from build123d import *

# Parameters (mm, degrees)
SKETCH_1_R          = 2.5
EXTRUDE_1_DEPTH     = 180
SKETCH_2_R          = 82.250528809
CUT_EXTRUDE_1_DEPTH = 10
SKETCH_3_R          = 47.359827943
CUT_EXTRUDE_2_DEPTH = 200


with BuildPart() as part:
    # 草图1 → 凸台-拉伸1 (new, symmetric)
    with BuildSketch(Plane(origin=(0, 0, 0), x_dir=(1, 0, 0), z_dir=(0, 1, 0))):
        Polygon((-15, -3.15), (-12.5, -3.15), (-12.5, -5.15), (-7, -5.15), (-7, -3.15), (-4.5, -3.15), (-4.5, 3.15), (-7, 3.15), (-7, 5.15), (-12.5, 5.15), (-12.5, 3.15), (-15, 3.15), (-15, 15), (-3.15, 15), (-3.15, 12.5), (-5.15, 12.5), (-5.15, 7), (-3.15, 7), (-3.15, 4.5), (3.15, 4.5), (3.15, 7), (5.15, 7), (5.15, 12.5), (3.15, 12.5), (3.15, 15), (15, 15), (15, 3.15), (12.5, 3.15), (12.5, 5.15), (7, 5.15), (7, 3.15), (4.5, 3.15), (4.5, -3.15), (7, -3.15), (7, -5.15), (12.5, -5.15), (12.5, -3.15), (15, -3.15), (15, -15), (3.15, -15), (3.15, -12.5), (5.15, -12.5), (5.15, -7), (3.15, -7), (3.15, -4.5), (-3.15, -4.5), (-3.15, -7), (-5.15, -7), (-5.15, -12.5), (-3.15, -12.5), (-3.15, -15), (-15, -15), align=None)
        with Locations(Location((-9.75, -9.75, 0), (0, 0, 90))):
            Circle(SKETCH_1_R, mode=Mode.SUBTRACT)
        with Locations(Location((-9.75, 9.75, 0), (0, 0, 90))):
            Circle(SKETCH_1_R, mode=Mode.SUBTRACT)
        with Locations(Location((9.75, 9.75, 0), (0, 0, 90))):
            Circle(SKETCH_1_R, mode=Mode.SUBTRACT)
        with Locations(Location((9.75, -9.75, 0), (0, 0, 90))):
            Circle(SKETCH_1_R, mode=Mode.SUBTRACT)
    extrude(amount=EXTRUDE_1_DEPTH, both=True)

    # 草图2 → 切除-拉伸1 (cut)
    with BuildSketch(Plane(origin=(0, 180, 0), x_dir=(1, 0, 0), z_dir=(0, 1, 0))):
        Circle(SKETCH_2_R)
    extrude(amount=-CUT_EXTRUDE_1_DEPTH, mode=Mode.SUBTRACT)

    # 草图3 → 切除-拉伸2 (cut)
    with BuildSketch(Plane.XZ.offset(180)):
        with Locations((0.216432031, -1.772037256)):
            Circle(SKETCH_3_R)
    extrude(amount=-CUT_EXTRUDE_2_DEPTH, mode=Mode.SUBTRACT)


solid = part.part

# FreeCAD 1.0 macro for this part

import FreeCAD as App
import Part
import Sketcher

V = App.Vector


def add_polygon(sketch, points):
    """Adds a closed chain of lines whose ends are joined by coincident constraints."""
    first, n = sketch.GeometryCount, len(points)
    for a, b in zip(points, points[1:] + points[:1]):
        sketch.addGeometry(Part.LineSegment(App.Vector(*a, 0), App.Vector(*b, 0)), False)
    for i in range(n):
        sketch.addConstraint(Sketcher.Constraint("Coincident", first + i, 2, first + (i + 1) % n, 1))

doc = App.newDocument("Part")
body = doc.addObject("PartDesign::Body", "Body")

# Sketch on XZ plane
sketch1 = doc.addObject("Sketcher::SketchObject", "Sketch")
body.addObject(sketch1)
sketch1.AttachmentSupport = (doc.XZ_Plane, [""])
sketch1.MapMode = "FlatFace"
add_polygon(sketch1, [(-12.5, 3.1), (-15, 3.1), (-15, 15), (-3.1, 15), (-3.1, 12.5), (-5.2, 12.5), (-5.2, 7), (-3.1, 7), (-3.1, 4.5), (3.1, 4.5), (3.1, 7), (5.2, 7), (5.2, 12.5), (3.1, 12.5), (3.1, 15), (15, 15), (15, 3.1), (12.5, 3.1), (12.5, 5.2), (7, 5.2), (7, 3.1), (4.5, 3.1), (4.5, -3.1), (7, -3.1), (7, -5.2), (12.5, -5.2), (12.5, -3.1), (15, -3.1), (15, -15), (3.1, -15), (3.1, -12.5), (5.2, -12.5), (5.2, -7), (3.1, -7), (3.1, -4.5), (-3.1, -4.5), (-3.1, -7), (-5.2, -7), (-5.2, -12.5), (-3.1, -12.5), (-3.1, -15), (-15, -15), (-15, -3.1), (-12.5, -3.1), (-12.5, -5.2), (-7, -5.2), (-7, -3.1), (-4.5, -3.1), (-4.5, 3.1), (-7, 3.1), (-7, 5.2), (-12.5, 5.2)])  # lines 0-51
sketch1.addGeometry(Part.Circle(V(9.8, 9.8, 0), V(0, 0, 1), 2.5), False)  # 52
sketch1.addGeometry(Part.Circle(V(-9.8, 9.8, 0), V(0, 0, 1), 2.5), False)  # 53
sketch1.addGeometry(Part.Circle(V(9.8, -9.8, 0), V(0, 0, 1), 2.5), False)  # 54
sketch1.addGeometry(Part.Circle(V(-9.8, -9.8, 0), V(0, 0, 1), 2.5), False)  # 55
sketch1.addConstraint(Sketcher.Constraint("Horizontal", 0))
sketch1.addConstraint(Sketcher.Constraint("Vertical", 1))
sketch1.addConstraint(Sketcher.Constraint("Horizontal", 2))
sketch1.addConstraint(Sketcher.Constraint("Vertical", 3))
sketch1.addConstraint(Sketcher.Constraint("Horizontal", 4))
sketch1.addConstraint(Sketcher.Constraint("Vertical", 5))
sketch1.addConstraint(Sketcher.Constraint("Horizontal", 6))
sketch1.addConstraint(Sketcher.Constraint("Vertical", 7))
sketch1.addConstraint(Sketcher.Constraint("Horizontal", 8))
sketch1.addConstraint(Sketcher.Constraint("Vertical", 9))
sketch1.addConstraint(Sketcher.Constraint("Horizontal", 10))
sketch1.addConstraint(Sketcher.Constraint("Vertical", 11))
sketch1.addConstraint(Sketcher.Constraint("Horizontal", 12))
sketch1.addConstraint(Sketcher.Constraint("Vertical", 13))
sketch1.addConstraint(Sketcher.Constraint("Horizontal", 14))
sketch1.addConstraint(Sketcher.Constraint("Vertical", 15))
sketch1.addConstraint(Sketcher.Constraint("Horizontal", 16))
sketch1.addConstraint(Sketcher.Constraint("Vertical", 17))
sketch1.addConstraint(Sketcher.Constraint("Horizontal", 18))
sketch1.addConstraint(Sketcher.Constraint("Vertical", 19))
sketch1.addConstraint(Sketcher.Constraint("Horizontal", 20))
sketch1.addConstraint(Sketcher.Constraint("Vertical", 21))
sketch1.addConstraint(Sketcher.Constraint("Horizontal", 22))
sketch1.addConstraint(Sketcher.Constraint("Vertical", 23))
sketch1.addConstraint(Sketcher.Constraint("Horizontal", 24))
sketch1.addConstraint(Sketcher.Constraint("Vertical", 25))
sketch1.addConstraint(Sketcher.Constraint("Horizontal", 26))
sketch1.addConstraint(Sketcher.Constraint("Vertical", 27))
sketch1.addConstraint(Sketcher.Constraint("Horizontal", 28))
sketch1.addConstraint(Sketcher.Constraint("Vertical", 29))
sketch1.addConstraint(Sketcher.Constraint("Horizontal", 30))
sketch1.addConstraint(Sketcher.Constraint("Vertical", 31))
sketch1.addConstraint(Sketcher.Constraint("Horizontal", 32))
sketch1.addConstraint(Sketcher.Constraint("Vertical", 33))
sketch1.addConstraint(Sketcher.Constraint("Horizontal", 34))
sketch1.addConstraint(Sketcher.Constraint("Vertical", 35))
sketch1.addConstraint(Sketcher.Constraint("Horizontal", 36))
sketch1.addConstraint(Sketcher.Constraint("Vertical", 37))
sketch1.addConstraint(Sketcher.Constraint("Horizontal", 38))
sketch1.addConstraint(Sketcher.Constraint("Vertical", 39))
sketch1.addConstraint(Sketcher.Constraint("Horizontal", 40))
sketch1.addConstraint(Sketcher.Constraint("Vertical", 41))
sketch1.addConstraint(Sketcher.Constraint("Horizontal", 42))
sketch1.addConstraint(Sketcher.Constraint("Vertical", 43))
sketch1.addConstraint(Sketcher.Constraint("Horizontal", 44))
sketch1.addConstraint(Sketcher.Constraint("Vertical", 45))
sketch1.addConstraint(Sketcher.Constraint("Horizontal", 46))
sketch1.addConstraint(Sketcher.Constraint("Vertical", 47))
sketch1.addConstraint(Sketcher.Constraint("Horizontal", 48))
sketch1.addConstraint(Sketcher.Constraint("Vertical", 49))
sketch1.addConstraint(Sketcher.Constraint("Horizontal", 50))
sketch1.addConstraint(Sketcher.Constraint("Vertical", 51))
sketch1.addConstraint(Sketcher.Constraint("Equal", 52, 53))
sketch1.addConstraint(Sketcher.Constraint("Equal", 53, 54))
sketch1.addConstraint(Sketcher.Constraint("Equal", 54, 55))
sketch1.addConstraint(Sketcher.Constraint("Symmetric", 53, 3, 54, 3, -1, 1))
sketch1.addConstraint(Sketcher.Constraint("Symmetric", 52, 3, 55, 3, -1, 1))
sketch1.addConstraint(Sketcher.Constraint("Symmetric", 0, 2, 26, 2, -1, 1))
sketch1.addConstraint(Sketcher.Constraint("Symmetric", 2, 2, 28, 2, -1, 1))
sketch1.addConstraint(Sketcher.Constraint("Symmetric", 4, 2, 30, 2, -1, 1))
sketch1.addConstraint(Sketcher.Constraint("Symmetric", 6, 2, 32, 2, -1, 1))
sketch1.addConstraint(Sketcher.Constraint("Symmetric", 8, 2, 34, 2, -1, 1))
sketch1.addConstraint(Sketcher.Constraint("Symmetric", 10, 2, 36, 2, -1, 1))
sketch1.addConstraint(Sketcher.Constraint("Symmetric", 12, 2, 38, 2, -1, 1))
sketch1.addConstraint(Sketcher.Constraint("Symmetric", 14, 2, 40, 2, -1, 1))
sketch1.addConstraint(Sketcher.Constraint("Symmetric", 16, 2, 42, 2, -1, 1))
sketch1.addConstraint(Sketcher.Constraint("Symmetric", 18, 2, 44, 2, -1, 1))
sketch1.addConstraint(Sketcher.Constraint("Symmetric", 20, 2, 46, 2, -1, 1))
sketch1.addConstraint(Sketcher.Constraint("Symmetric", 22, 2, 48, 2, -1, 1))
sketch1.addConstraint(Sketcher.Constraint("Symmetric", 24, 2, 50, 2, -1, 1))
sketch1.addConstraint(Sketcher.Constraint("Symmetric", 52, 3, 53, 3, -2))
sketch1.addConstraint(Sketcher.Constraint("Symmetric", 6, 2, 9, 2, -2))
sketch1.addConstraint(Sketcher.Constraint("Symmetric", 4, 2, 11, 2, -2))
sketch1.addConstraint(Sketcher.Constraint("Symmetric", 2, 2, 13, 2, -2))
sketch1.addConstraint(Sketcher.Constraint("Symmetric", 0, 2, 15, 2, -2))
sketch1.addConstraint(Sketcher.Constraint("Symmetric", 24, 2, 43, 2, -2))
sketch1.addConstraint(Sketcher.Constraint("Symmetric", 22, 2, 45, 2, -2))
sketch1.addConstraint(Sketcher.Constraint("Horizontal", 16, 2, 19, 2))
sketch1.addConstraint(Sketcher.Constraint("Vertical", 3, 2, 6, 2))
sketch1.addConstraint(Sketcher.Constraint("Equal", 16, 20))
sketch1.addConstraint(Sketcher.Constraint("Equal", 40, 1))
sketch1.addConstraint(Sketcher.Constraint("Equal", 48, 3))
sketch1.addConstraint(Sketcher.Constraint("Equal", 50, 5))
sketch1.addConstraint(Sketcher.Constraint("Equal", 3, 7))
sketch1.addConstraint(Sketcher.Constraint("Equal", 38, 17))
sketch1.addConstraint(Sketcher.Constraint("Equal", 34, 21))
sketch1.addConstraint(Sketcher.Constraint("Diameter", 52, 5.0))
sketch1.addConstraint(Sketcher.Constraint("DistanceX", 4, 2, 4, 1, 2.0))
sketch1.addConstraint(Sketcher.Constraint("DistanceX", 0, 2, 0, 1, 2.5))
sketch1.addConstraint(Sketcher.Constraint("DistanceX", 8, 1, 8, 2, 6.3))
sketch1.addConstraint(Sketcher.Constraint("DistanceX", 18, 2, 18, 1, 5.5))
sketch1.addConstraint(Sketcher.Constraint("DistanceX", 0, 2, -1, 1, 15.0))
sketch1.addConstraint(Sketcher.Constraint("DistanceX", 53, 3, 52, 3, 19.5))
sketch1.addConstraint(Sketcher.Constraint("DistanceY", 54, 3, 52, 3, 19.5))
pad1 = doc.addObject("PartDesign::Pad", "Pad")
body.addObject(pad1)
pad1.Profile = sketch1
pad1.Length = 360
pad1.Midplane = True

# Sketch on XZ plane
sketch2 = doc.addObject("Sketcher::SketchObject", "Sketch001")
body.addObject(sketch2)
sketch2.AttachmentSupport = (doc.XZ_Plane, [""])
sketch2.MapMode = "FlatFace"
sketch2.AttachmentOffset = App.Placement(V(0, 0, -180), App.Rotation())
sketch2.addGeometry(Part.Circle(V(0, 0, 0), V(0, 0, 1), 82), False)
sketch2.addConstraint(Sketcher.Constraint("Coincident", 0, 3, -1, 1))
sketch2.addConstraint(Sketcher.Constraint("Diameter", 0, 164.501058))
pocket1 = doc.addObject("PartDesign::Pocket", "Pocket")
body.addObject(pocket1)
pocket1.Profile = sketch2
pocket1.Length = 10
pocket1.Reversed = True

# Sketch on XZ plane
sketch3 = doc.addObject("Sketcher::SketchObject", "Sketch002")
body.addObject(sketch3)
sketch3.AttachmentSupport = (doc.XZ_Plane, [""])
sketch3.MapMode = "FlatFace"
sketch3.AttachmentOffset = App.Placement(V(0, 0, 180), App.Rotation())
sketch3.addGeometry(Part.Circle(V(0, -2, 0), V(0, 0, 1), 47), False)
sketch3.addConstraint(Sketcher.Constraint("Diameter", 0, 94.719656))
sketch3.addConstraint(Sketcher.Constraint("DistanceX", -1, 1, 0, 3, 0.216432))
sketch3.addConstraint(Sketcher.Constraint("DistanceY", 0, 3, -1, 1, 1.772037))
pocket2 = doc.addObject("PartDesign::Pocket", "Pocket001")
body.addObject(pocket2)
pocket2.Profile = sketch3
pocket2.Length = 200

doc.recompute()
